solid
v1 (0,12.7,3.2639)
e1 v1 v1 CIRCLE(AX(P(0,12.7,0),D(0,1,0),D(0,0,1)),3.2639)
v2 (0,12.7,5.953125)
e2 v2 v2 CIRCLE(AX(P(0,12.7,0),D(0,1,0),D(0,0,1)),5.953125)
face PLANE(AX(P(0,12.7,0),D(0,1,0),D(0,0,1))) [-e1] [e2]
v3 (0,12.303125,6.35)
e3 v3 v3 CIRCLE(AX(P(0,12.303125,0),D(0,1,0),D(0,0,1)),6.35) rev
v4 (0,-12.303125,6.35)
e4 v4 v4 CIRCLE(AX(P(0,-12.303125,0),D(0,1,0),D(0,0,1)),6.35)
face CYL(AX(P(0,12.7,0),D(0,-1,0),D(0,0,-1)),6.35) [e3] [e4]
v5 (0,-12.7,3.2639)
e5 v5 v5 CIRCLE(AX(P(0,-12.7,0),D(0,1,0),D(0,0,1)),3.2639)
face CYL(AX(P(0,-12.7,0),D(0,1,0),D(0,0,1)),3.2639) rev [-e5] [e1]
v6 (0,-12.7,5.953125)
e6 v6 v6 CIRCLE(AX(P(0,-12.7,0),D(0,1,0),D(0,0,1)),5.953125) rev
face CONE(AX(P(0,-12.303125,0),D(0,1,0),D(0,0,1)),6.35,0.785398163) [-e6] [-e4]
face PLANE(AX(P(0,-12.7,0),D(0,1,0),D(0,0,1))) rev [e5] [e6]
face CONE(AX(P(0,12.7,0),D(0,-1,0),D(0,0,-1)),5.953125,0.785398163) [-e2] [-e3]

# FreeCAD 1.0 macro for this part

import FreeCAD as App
import Part
import Sketcher
from FreeCAD import Vector
Q = App.Units.Quantity


def edges_at(feature, points):
    """Names of the edges that pass closest to the given points."""
    edges = feature.Shape.Edges
    near = lambda p: min(range(len(edges)), key=lambda i: edges[i].distToShape(Part.Vertex(*p))[0])
    return sorted({f"Edge{near(p) + 1}" for p in points})

doc = App.newDocument("Part")
body = doc.addObject("PartDesign::Body", "Body")

# Sketch on XZ plane
sketch1 = doc.addObject("Sketcher::SketchObject", "Sketch")
body.addObject(sketch1)
sketch1.AttachmentSupport = (doc.XZ_Plane, [""])
sketch1.MapMode = "FlatFace"
sketch1.addGeometry(Part.Circle(Vector(0, 0, 0), Vector(0, 0, 1), 6), False)
sketch1.addConstraint(Sketcher.Constraint("Coincident", 0, 3, -1, 1))
sketch1.addConstraint(Sketcher.Constraint("Diameter", 0, Q("0.5 in")))
pad1 = doc.addObject("PartDesign::Pad", "Pad")
body.addObject(pad1)
pad1.Profile = sketch1
pad1.Length = Q("1 in")
pad1.Midplane = True
doc.recompute()

chamfer = doc.addObject("PartDesign::Chamfer", "Chamfer")
body.addObject(chamfer)
chamfer.Base = (pad1, edges_at(pad1, [(0, -12.7, -6.35), (0, 12.7, -6.35)]))
chamfer.Size = Q("0.015625 in")

# Sketch on XZ plane
sketch2 = doc.addObject("Sketcher::SketchObject", "Sketch001")
body.addObject(sketch2)
sketch2.AttachmentSupport = (doc.XZ_Plane, [""])
sketch2.MapMode = "FlatFace"
sketch2.addGeometry(Part.Circle(Vector(0, 0, 0), Vector(0, 0, 1), 3.3), False)
sketch2.addConstraint(Sketcher.Constraint("Coincident", 0, 3, -1, 1))
sketch2.addConstraint(Sketcher.Constraint("Diameter", 0, Q("0.257 in")))
pocket1 = doc.addObject("PartDesign::Pocket", "Pocket")
body.addObject(pocket1)
pocket1.Profile = sketch2
pocket1.Type = "ThroughAll"
pocket1.Midplane = True

doc.recompute()
